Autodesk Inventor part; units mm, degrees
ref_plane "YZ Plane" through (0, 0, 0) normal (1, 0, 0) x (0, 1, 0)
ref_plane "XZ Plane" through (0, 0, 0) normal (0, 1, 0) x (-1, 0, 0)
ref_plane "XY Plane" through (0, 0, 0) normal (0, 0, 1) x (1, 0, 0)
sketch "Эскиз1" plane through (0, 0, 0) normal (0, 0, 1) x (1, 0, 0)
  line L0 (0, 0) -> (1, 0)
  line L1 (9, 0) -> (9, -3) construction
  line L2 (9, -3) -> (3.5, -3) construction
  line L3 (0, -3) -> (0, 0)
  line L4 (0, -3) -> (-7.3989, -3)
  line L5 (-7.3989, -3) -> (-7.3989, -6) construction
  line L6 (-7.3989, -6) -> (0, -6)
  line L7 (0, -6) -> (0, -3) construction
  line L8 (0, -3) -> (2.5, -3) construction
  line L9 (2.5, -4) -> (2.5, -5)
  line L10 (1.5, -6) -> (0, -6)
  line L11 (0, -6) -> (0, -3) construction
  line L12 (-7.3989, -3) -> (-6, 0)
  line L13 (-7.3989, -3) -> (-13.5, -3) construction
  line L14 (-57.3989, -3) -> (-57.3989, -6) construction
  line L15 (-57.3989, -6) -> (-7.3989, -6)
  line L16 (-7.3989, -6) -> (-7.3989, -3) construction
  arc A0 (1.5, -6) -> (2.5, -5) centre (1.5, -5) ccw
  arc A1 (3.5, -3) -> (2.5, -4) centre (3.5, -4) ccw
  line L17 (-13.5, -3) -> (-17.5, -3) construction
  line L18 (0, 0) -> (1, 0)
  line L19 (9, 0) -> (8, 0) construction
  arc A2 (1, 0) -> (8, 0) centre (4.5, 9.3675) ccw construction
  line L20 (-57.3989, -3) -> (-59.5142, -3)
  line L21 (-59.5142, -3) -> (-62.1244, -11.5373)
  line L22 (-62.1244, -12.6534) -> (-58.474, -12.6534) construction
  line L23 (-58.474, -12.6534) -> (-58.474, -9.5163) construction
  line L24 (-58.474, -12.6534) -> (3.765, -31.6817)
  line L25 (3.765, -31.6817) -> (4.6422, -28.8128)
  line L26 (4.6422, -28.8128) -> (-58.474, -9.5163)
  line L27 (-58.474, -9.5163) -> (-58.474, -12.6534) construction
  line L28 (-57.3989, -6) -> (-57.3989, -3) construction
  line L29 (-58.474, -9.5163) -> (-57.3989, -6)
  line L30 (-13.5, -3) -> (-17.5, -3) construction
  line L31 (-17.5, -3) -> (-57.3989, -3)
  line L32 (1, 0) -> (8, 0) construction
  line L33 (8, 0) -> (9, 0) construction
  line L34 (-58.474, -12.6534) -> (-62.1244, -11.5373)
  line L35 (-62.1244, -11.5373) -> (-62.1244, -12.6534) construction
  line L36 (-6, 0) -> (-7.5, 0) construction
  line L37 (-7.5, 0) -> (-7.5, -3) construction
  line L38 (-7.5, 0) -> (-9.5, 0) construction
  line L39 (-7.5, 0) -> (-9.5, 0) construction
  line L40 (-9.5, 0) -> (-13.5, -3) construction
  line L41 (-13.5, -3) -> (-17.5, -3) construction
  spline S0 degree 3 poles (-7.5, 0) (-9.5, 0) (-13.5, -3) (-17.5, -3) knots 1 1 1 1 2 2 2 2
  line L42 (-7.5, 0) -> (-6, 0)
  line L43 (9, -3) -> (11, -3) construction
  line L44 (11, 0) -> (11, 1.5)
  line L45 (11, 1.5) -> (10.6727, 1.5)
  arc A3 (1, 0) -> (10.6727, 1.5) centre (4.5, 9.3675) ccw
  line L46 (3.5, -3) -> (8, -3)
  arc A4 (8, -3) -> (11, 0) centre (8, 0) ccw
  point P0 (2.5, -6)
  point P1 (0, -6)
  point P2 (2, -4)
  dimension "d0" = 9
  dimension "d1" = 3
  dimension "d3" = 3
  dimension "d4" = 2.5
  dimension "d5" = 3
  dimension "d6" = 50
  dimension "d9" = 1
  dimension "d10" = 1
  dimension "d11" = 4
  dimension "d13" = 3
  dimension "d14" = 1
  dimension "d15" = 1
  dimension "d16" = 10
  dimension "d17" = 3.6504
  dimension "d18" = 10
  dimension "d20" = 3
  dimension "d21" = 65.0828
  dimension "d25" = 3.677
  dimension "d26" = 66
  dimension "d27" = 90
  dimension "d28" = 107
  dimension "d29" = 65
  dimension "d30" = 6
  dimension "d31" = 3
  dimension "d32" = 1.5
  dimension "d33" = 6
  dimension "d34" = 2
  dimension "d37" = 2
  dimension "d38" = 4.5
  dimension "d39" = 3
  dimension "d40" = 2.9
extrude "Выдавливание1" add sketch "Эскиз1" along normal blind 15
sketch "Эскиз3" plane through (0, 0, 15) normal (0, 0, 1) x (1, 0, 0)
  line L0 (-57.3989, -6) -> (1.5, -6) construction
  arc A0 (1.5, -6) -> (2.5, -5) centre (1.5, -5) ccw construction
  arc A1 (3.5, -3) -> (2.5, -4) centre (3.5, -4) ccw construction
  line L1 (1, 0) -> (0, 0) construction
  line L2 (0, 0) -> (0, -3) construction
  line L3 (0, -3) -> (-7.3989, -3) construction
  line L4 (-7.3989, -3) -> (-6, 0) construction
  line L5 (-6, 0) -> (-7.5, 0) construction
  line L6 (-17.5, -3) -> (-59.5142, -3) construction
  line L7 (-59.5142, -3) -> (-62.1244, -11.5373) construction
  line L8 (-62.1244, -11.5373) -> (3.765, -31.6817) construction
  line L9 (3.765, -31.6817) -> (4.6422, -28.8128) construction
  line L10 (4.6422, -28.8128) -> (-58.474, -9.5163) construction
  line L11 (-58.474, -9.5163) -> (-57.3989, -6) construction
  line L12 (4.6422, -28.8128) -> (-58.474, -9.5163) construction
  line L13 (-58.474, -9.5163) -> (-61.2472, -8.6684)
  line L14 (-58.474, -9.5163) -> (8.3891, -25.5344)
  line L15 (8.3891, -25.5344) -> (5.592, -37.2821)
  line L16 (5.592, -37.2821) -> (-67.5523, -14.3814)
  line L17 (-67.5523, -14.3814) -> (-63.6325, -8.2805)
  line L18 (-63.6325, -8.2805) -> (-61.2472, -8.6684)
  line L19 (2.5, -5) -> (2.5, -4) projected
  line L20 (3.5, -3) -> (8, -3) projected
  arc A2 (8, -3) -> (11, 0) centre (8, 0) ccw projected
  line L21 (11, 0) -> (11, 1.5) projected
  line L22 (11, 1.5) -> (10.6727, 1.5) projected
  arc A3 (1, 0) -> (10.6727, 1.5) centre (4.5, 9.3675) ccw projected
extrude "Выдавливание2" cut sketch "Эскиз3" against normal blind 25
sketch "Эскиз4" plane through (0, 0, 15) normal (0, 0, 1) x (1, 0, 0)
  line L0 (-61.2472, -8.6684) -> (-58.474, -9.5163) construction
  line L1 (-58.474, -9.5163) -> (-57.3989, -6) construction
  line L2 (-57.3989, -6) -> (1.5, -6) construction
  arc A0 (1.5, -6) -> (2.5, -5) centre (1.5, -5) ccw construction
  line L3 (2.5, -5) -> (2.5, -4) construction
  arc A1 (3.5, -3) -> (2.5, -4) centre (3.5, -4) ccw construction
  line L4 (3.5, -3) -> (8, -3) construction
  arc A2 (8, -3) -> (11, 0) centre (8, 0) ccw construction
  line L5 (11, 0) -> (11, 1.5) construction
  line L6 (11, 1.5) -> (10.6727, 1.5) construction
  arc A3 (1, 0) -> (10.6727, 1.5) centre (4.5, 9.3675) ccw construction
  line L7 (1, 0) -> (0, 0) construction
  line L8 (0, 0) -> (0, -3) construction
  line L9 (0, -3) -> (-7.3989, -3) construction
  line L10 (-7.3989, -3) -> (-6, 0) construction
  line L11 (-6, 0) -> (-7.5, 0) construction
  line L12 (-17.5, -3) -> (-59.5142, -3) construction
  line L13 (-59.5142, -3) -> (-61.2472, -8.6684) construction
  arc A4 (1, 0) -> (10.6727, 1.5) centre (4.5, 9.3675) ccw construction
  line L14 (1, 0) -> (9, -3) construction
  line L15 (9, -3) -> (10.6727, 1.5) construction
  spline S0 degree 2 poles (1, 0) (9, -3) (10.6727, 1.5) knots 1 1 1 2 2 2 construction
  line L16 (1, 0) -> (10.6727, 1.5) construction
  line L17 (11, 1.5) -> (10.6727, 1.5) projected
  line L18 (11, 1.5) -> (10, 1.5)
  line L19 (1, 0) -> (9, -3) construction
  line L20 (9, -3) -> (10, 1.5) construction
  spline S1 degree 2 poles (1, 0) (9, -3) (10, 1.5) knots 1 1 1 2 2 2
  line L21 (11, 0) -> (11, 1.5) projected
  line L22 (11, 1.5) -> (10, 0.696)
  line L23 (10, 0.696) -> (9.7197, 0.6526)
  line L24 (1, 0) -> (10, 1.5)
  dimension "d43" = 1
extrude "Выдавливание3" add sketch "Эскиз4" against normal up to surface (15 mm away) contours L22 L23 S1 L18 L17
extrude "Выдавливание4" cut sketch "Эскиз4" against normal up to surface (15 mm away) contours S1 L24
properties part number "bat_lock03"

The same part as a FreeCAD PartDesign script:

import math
import FreeCAD as App
import Part
import Sketcher
Q = App.Units.Quantity


def add_polygon(sketch, points):
    """Adds a closed chain of lines whose ends are joined by coincident constraints."""
    first, n = sketch.GeometryCount, len(points)
    for a, b in zip(points, points[1:] + points[:1]):
        sketch.addGeometry(Part.LineSegment(App.Vector(*a, 0), App.Vector(*b, 0)), False)
    for i in range(n):
        sketch.addConstraint(Sketcher.Constraint("Coincident", first + i, 2, first + (i + 1) % n, 1))

doc = App.newDocument("Part")
body = doc.addObject("PartDesign::Body", "Body")

# Sketch on XY plane
sketch1 = doc.addObject("Sketcher::SketchObject", "Sketch")
body.addObject(sketch1)
sketch1.AttachmentSupport = (doc.XY_Plane, [""])
sketch1.MapMode = "FlatFace"
sketch1.addGeometry([
    Part.LineSegment(App.Vector(1, 0, 0), App.Vector(0, 0, 0)),  # 0
    Part.LineSegment(App.Vector(0, 0, 0), App.Vector(0, -3, 0)),  # 1
    Part.LineSegment(App.Vector(0, -3, 0), App.Vector(-7.3989, -3, 0)),  # 2
    Part.LineSegment(App.Vector(-7.3989, -3, 0), App.Vector(-6, 0, 0)),  # 3
    Part.LineSegment(App.Vector(-6, 0, 0), App.Vector(-7.5, 0, 0)),  # 4
    Part.BSplineCurve([App.Vector(-7.5, 0, 0), App.Vector(-9.5, 0, 0), App.Vector(-13.5, -3, 0), App.Vector(-17.5, -3, 0)], [4, 4], [1, 2], False, 3, [1, 1, 1, 1], False),  # 5
    Part.LineSegment(App.Vector(-17.5, -3, 0), App.Vector(-59.5142, -3, 0)),  # 6
    Part.LineSegment(App.Vector(-59.5142, -3, 0), App.Vector(-62.1244, -11.5373, 0)),  # 7
    Part.LineSegment(App.Vector(-62.1244, -11.5373, 0), App.Vector(-58.474, -12.6534, 0)),  # 8
    Part.LineSegment(App.Vector(-58.474, -12.6534, 0), App.Vector(3.765, -31.6817, 0)),  # 9
    Part.LineSegment(App.Vector(3.765, -31.6817, 0), App.Vector(4.6422, -28.8128, 0)),  # 10
    Part.LineSegment(App.Vector(4.6422, -28.8128, 0), App.Vector(-58.474, -9.5163, 0)),  # 11
    Part.LineSegment(App.Vector(-58.474, -9.5163, 0), App.Vector(-57.3989, -6, 0)),  # 12
    Part.LineSegment(App.Vector(-57.3989, -6, 0), App.Vector(1.5, -6, 0)),  # 13
    Part.ArcOfCircle(Part.Circle(App.Vector(1.5, -5, 0), App.Vector(0, 0, 1), 1), math.radians(-90), math.radians(0)),  # 14
    Part.LineSegment(App.Vector(2.5, -5, 0), App.Vector(2.5, -4, 0)),  # 15
    Part.ArcOfCircle(Part.Circle(App.Vector(3.5, -4, 0), App.Vector(0, 0, 1), 1), math.radians(90), math.radians(180)),  # 16
    Part.LineSegment(App.Vector(3.5, -3, 0), App.Vector(8, -3, 0)),  # 17
    Part.ArcOfCircle(Part.Circle(App.Vector(8, 0, 0), App.Vector(0, 0, 1), 3), math.radians(-90), math.radians(0)),  # 18
    Part.LineSegment(App.Vector(11, 0, 0), App.Vector(11, 1.5, 0)),  # 19
    Part.LineSegment(App.Vector(11, 1.5, 0), App.Vector(10.6727, 1.5, 0)),  # 20
    Part.ArcOfCircle(Part.Circle(App.Vector(4.5, 9.3675, 0), App.Vector(0, 0, 1), 10.000003), math.radians(-110.487309), math.radians(-51.882903)),  # 21
], False)
sketch1.addConstraint([
    Sketcher.Constraint("Block", 5),
    Sketcher.Constraint("Coincident", 0, 2, 1, 1),
    Sketcher.Constraint("Coincident", 1, 2, 2, 1),
    Sketcher.Constraint("Coincident", 2, 2, 3, 1),
    Sketcher.Constraint("Coincident", 3, 2, 4, 1),
    Sketcher.Constraint("Coincident", 4, 2, 5, 1),
    Sketcher.Constraint("Coincident", 5, 2, 6, 1),
    Sketcher.Constraint("Coincident", 6, 2, 7, 1),
    Sketcher.Constraint("Coincident", 7, 2, 8, 1),
    Sketcher.Constraint("Coincident", 8, 2, 9, 1),
    Sketcher.Constraint("Coincident", 9, 2, 10, 1),
    Sketcher.Constraint("Coincident", 10, 2, 11, 1),
    Sketcher.Constraint("Coincident", 11, 2, 12, 1),
    Sketcher.Constraint("Coincident", 12, 2, 13, 1),
    Sketcher.Constraint("Coincident", 13, 2, 14, 1),
    Sketcher.Constraint("Coincident", 14, 2, 15, 1),
    Sketcher.Constraint("Coincident", 15, 2, 16, 2),
    Sketcher.Constraint("Coincident", 16, 1, 17, 1),
    Sketcher.Constraint("Coincident", 17, 2, 18, 1),
    Sketcher.Constraint("Coincident", 18, 2, 19, 1),
    Sketcher.Constraint("Coincident", 19, 2, 20, 1),
    Sketcher.Constraint("Coincident", 20, 2, 21, 2),
    Sketcher.Constraint("Coincident", 21, 1, 0, 1),
    Sketcher.Constraint("Horizontal", 0),
    Sketcher.Constraint("Vertical", 1),
    Sketcher.Constraint("Horizontal", 2),
    Sketcher.Constraint("Horizontal", 4),
    Sketcher.Constraint("Horizontal", 6),
    Sketcher.Constraint("Horizontal", 13),
    Sketcher.Constraint("Vertical", 15),
    Sketcher.Constraint("Horizontal", 17),
    Sketcher.Constraint("Vertical", 19),
    Sketcher.Constraint("Horizontal", 20),
    Sketcher.Constraint("Coincident", 0, 2, -1, 1),
    Sketcher.Constraint("PointOnObject", 18, 3, -1),
    Sketcher.Constraint("PointOnObject", 18, 2, -1),
    Sketcher.Constraint("Radius", 14, Q("1 mm")),
    Sketcher.Constraint("Radius", 16, Q("1 mm")),
    Sketcher.Constraint("Radius", 18, Q("3 mm")),
    Sketcher.Constraint("Radius", 21, Q("10 mm")),
    Sketcher.Constraint("DistanceX", 0, 2, 0, 1, Q("1 mm")),
    Sketcher.Constraint("DistanceY", 1, 2, 1, 1, Q("3 mm")),
    Sketcher.Constraint("DistanceY", 15, 1, 15, 2, Q("1 mm")),
    Sketcher.Constraint("Distance", 10, Q("3 mm")),
    Sketcher.Constraint("Distance", 11, Q("66 mm")),
    Sketcher.Constraint("DistanceX", 4, 2, 4, 1, Q("1.5 mm")),
    Sketcher.Constraint("DistanceX", 17, 1, 17, 2, Q("4.5 mm")),
    Sketcher.Constraint("DistanceY", 19, 1, 19, 2, Q("1.5 mm")),
    Sketcher.Constraint("DistanceY", 12, 2, -1, 1, Q("6 mm")),
    Sketcher.Constraint("DistanceY", 15, 2, -1, 1, Q("4 mm")),
    Sketcher.Constraint("DistanceX", 16, 3, 21, 3, Q("1 mm")),
    Sketcher.Constraint("DistanceX", 4, 2, 14, 3, Q("9 mm")),
    Sketcher.Constraint("DistanceX", 12, 2, 2, 2, Q("50 mm")),
    Sketcher.Constraint("DistanceX", 13, 2, 16, 3, Q("2 mm")),
    Sketcher.Constraint("DistanceX", 15, 2, 16, 1, Q("1 mm")),
    Sketcher.Constraint("DistanceX", 17, 2, 18, 2, Q("3 mm")),
    Sketcher.Constraint("Distance", 12, Q("3.677 mm")),
    Sketcher.Constraint("Distance", 9, Q("65.0828 mm")),
    Sketcher.Constraint("DistanceX", 7, 2, 8, 2, Q("3.6504 mm")),
    Sketcher.Constraint("DistanceX", 7, 2, 11, 2, Q("3.6504 mm")),
    Sketcher.Constraint("DistanceX", 2, 2, 2, 1, Q("7.399 mm")),
    Sketcher.Constraint("DistanceX", 6, 2, 6, 1, Q("42.0142 mm")),
    Sketcher.Constraint("DistanceX", 8, 2, -1, 1, Q("58.474 mm")),
    Sketcher.Constraint("DistanceX", -1, 1, 9, 2, Q("3.765 mm")),
    Sketcher.Constraint("DistanceY", 8, 2, 7, 2, Q("1.116 mm")),
    Sketcher.Constraint("DistanceY", 9, 2, 10, 2, Q("2.869 mm")),
])
pad1 = doc.addObject("PartDesign::Pad", "Pad")
body.addObject(pad1)
pad1.Profile = sketch1
pad1.Length = 15

# Sketch on XY plane
sketch2 = doc.addObject("Sketcher::SketchObject", "Sketch001")
body.addObject(sketch2)
sketch2.AttachmentSupport = (doc.XY_Plane, [""])
sketch2.MapMode = "FlatFace"
sketch2.AttachmentOffset = App.Placement(App.Vector(0, 0, 15), App.Rotation())
add_polygon(sketch2, [(8.4, -25.5), (-58.5, -9.5), (-61.2, -8.7), (-63.6, -8.3), (-67.6, -14.4), (5.6, -37.3)])  # lines 0-5
sketch2.addConstraint([
    Sketcher.Constraint("Angle", 1, Q("162.999 deg")),
    Sketcher.Constraint("Distance", 1, Q("2.9 mm")),
    Sketcher.Constraint("Angle", 3, Q("-122.7206 deg")),
    Sketcher.Constraint("Distance", 0, Q("68.755 mm")),
    Sketcher.Constraint("Distance", 5, Q("12.076 mm")),
    Sketcher.Constraint("DistanceX", 0, 2, -1, 1, Q("58.474 mm")),
    Sketcher.Constraint("DistanceX", -1, 1, 4, 2, Q("5.592 mm")),
    Sketcher.Constraint("DistanceY", 4, 2, -1, 1, Q("37.282 mm")),
    Sketcher.Constraint("DistanceX", -1, 1, 5, 2, Q("8.389 mm")),
    Sketcher.Constraint("DistanceY", 1, 2, 2, 2, Q("0.388 mm")),
    Sketcher.Constraint("DistanceY", 3, 2, 2, 2, Q("6.101 mm")),
    Sketcher.Constraint("DistanceX", 3, 2, 1, 2, Q("6.305 mm")),
])
pocket1 = doc.addObject("PartDesign::Pocket", "Pocket")
body.addObject(pocket1)
pocket1.Profile = sketch2
pocket1.Length = 25

# Sketch on XY plane
sketch3 = doc.addObject("Sketcher::SketchObject", "Sketch002")
body.addObject(sketch3)
sketch3.AttachmentSupport = (doc.XY_Plane, [""])
sketch3.MapMode = "FlatFace"
sketch3.AttachmentOffset = App.Placement(App.Vector(0, 0, 15), App.Rotation())
sketch3.addGeometry([
    Part.LineSegment(App.Vector(10, 0.696, 0), App.Vector(11, 1.5, 0)),
    Part.LineSegment(App.Vector(11, 1.5, 0), App.Vector(10, 1.5, 0)),
    Part.BSplineCurve([App.Vector(9.719743, 0.65258, 0), App.Vector(9.897002, 1.036508, 0), App.Vector(10, 1.5, 0)], [3, 3], [1.897001705, 2], False, 2, [1, 1, 1], False),
    Part.LineSegment(App.Vector(9.7197, 0.6526, 0), App.Vector(10, 0.696, 0)),
], False)
sketch3.addConstraint([
    Sketcher.Constraint("Block", 2),
    Sketcher.Constraint("Coincident", 0, 2, 1, 1),
    Sketcher.Constraint("Coincident", 1, 2, 2, 2),
    Sketcher.Constraint("Coincident", 2, 1, 3, 1),
    Sketcher.Constraint("Coincident", 3, 2, 0, 1),
    Sketcher.Constraint("Horizontal", 1),
    Sketcher.Constraint("Vertical", 1, 2, 3, 2),
    Sketcher.Constraint("DistanceX", 1, 2, 1, 1, Q("1 mm")),
    Sketcher.Constraint("Angle", 0, Q("38.7993 deg")),
])
pad2 = doc.addObject("PartDesign::Pad", "Pad001")
body.addObject(pad2)
pad2.Profile = sketch3
pad2.Length = 15
pad2.Reversed = True

# Sketch on XY plane
sketch4 = doc.addObject("Sketcher::SketchObject", "Sketch003")
body.addObject(sketch4)
sketch4.AttachmentSupport = (doc.XY_Plane, [""])
sketch4.MapMode = "FlatFace"
sketch4.AttachmentOffset = App.Placement(App.Vector(0, 0, 15), App.Rotation())
sketch4.addGeometry([
    Part.BSplineCurve([App.Vector(9.719743, 0.65258, 0), App.Vector(9.897002, 1.036508, 0), App.Vector(10, 1.5, 0)], [3, 3], [1.897001705, 2], False, 2, [1, 1, 1], False),
    Part.LineSegment(App.Vector(10, 1.5, 0), App.Vector(1, 0, 0)),
    Part.BSplineCurve([App.Vector(1, 0, 0), App.Vector(8.176014, -2.691005, 0), App.Vector(9.719743, 0.65258, 0)], [3, 3], [1, 1.897001705], False, 2, [1, 1, 1], False),
], False)
sketch4.addConstraint([
    Sketcher.Constraint("Block", 0),
    Sketcher.Constraint("Block", 2),
    Sketcher.Constraint("Coincident", 0, 2, 1, 1),
    Sketcher.Constraint("Coincident", 1, 2, 2, 1),
])
pocket2 = doc.addObject("PartDesign::Pocket", "Pocket001")
body.addObject(pocket2)
pocket2.Profile = sketch4
pocket2.Length = 15

doc.recompute()
